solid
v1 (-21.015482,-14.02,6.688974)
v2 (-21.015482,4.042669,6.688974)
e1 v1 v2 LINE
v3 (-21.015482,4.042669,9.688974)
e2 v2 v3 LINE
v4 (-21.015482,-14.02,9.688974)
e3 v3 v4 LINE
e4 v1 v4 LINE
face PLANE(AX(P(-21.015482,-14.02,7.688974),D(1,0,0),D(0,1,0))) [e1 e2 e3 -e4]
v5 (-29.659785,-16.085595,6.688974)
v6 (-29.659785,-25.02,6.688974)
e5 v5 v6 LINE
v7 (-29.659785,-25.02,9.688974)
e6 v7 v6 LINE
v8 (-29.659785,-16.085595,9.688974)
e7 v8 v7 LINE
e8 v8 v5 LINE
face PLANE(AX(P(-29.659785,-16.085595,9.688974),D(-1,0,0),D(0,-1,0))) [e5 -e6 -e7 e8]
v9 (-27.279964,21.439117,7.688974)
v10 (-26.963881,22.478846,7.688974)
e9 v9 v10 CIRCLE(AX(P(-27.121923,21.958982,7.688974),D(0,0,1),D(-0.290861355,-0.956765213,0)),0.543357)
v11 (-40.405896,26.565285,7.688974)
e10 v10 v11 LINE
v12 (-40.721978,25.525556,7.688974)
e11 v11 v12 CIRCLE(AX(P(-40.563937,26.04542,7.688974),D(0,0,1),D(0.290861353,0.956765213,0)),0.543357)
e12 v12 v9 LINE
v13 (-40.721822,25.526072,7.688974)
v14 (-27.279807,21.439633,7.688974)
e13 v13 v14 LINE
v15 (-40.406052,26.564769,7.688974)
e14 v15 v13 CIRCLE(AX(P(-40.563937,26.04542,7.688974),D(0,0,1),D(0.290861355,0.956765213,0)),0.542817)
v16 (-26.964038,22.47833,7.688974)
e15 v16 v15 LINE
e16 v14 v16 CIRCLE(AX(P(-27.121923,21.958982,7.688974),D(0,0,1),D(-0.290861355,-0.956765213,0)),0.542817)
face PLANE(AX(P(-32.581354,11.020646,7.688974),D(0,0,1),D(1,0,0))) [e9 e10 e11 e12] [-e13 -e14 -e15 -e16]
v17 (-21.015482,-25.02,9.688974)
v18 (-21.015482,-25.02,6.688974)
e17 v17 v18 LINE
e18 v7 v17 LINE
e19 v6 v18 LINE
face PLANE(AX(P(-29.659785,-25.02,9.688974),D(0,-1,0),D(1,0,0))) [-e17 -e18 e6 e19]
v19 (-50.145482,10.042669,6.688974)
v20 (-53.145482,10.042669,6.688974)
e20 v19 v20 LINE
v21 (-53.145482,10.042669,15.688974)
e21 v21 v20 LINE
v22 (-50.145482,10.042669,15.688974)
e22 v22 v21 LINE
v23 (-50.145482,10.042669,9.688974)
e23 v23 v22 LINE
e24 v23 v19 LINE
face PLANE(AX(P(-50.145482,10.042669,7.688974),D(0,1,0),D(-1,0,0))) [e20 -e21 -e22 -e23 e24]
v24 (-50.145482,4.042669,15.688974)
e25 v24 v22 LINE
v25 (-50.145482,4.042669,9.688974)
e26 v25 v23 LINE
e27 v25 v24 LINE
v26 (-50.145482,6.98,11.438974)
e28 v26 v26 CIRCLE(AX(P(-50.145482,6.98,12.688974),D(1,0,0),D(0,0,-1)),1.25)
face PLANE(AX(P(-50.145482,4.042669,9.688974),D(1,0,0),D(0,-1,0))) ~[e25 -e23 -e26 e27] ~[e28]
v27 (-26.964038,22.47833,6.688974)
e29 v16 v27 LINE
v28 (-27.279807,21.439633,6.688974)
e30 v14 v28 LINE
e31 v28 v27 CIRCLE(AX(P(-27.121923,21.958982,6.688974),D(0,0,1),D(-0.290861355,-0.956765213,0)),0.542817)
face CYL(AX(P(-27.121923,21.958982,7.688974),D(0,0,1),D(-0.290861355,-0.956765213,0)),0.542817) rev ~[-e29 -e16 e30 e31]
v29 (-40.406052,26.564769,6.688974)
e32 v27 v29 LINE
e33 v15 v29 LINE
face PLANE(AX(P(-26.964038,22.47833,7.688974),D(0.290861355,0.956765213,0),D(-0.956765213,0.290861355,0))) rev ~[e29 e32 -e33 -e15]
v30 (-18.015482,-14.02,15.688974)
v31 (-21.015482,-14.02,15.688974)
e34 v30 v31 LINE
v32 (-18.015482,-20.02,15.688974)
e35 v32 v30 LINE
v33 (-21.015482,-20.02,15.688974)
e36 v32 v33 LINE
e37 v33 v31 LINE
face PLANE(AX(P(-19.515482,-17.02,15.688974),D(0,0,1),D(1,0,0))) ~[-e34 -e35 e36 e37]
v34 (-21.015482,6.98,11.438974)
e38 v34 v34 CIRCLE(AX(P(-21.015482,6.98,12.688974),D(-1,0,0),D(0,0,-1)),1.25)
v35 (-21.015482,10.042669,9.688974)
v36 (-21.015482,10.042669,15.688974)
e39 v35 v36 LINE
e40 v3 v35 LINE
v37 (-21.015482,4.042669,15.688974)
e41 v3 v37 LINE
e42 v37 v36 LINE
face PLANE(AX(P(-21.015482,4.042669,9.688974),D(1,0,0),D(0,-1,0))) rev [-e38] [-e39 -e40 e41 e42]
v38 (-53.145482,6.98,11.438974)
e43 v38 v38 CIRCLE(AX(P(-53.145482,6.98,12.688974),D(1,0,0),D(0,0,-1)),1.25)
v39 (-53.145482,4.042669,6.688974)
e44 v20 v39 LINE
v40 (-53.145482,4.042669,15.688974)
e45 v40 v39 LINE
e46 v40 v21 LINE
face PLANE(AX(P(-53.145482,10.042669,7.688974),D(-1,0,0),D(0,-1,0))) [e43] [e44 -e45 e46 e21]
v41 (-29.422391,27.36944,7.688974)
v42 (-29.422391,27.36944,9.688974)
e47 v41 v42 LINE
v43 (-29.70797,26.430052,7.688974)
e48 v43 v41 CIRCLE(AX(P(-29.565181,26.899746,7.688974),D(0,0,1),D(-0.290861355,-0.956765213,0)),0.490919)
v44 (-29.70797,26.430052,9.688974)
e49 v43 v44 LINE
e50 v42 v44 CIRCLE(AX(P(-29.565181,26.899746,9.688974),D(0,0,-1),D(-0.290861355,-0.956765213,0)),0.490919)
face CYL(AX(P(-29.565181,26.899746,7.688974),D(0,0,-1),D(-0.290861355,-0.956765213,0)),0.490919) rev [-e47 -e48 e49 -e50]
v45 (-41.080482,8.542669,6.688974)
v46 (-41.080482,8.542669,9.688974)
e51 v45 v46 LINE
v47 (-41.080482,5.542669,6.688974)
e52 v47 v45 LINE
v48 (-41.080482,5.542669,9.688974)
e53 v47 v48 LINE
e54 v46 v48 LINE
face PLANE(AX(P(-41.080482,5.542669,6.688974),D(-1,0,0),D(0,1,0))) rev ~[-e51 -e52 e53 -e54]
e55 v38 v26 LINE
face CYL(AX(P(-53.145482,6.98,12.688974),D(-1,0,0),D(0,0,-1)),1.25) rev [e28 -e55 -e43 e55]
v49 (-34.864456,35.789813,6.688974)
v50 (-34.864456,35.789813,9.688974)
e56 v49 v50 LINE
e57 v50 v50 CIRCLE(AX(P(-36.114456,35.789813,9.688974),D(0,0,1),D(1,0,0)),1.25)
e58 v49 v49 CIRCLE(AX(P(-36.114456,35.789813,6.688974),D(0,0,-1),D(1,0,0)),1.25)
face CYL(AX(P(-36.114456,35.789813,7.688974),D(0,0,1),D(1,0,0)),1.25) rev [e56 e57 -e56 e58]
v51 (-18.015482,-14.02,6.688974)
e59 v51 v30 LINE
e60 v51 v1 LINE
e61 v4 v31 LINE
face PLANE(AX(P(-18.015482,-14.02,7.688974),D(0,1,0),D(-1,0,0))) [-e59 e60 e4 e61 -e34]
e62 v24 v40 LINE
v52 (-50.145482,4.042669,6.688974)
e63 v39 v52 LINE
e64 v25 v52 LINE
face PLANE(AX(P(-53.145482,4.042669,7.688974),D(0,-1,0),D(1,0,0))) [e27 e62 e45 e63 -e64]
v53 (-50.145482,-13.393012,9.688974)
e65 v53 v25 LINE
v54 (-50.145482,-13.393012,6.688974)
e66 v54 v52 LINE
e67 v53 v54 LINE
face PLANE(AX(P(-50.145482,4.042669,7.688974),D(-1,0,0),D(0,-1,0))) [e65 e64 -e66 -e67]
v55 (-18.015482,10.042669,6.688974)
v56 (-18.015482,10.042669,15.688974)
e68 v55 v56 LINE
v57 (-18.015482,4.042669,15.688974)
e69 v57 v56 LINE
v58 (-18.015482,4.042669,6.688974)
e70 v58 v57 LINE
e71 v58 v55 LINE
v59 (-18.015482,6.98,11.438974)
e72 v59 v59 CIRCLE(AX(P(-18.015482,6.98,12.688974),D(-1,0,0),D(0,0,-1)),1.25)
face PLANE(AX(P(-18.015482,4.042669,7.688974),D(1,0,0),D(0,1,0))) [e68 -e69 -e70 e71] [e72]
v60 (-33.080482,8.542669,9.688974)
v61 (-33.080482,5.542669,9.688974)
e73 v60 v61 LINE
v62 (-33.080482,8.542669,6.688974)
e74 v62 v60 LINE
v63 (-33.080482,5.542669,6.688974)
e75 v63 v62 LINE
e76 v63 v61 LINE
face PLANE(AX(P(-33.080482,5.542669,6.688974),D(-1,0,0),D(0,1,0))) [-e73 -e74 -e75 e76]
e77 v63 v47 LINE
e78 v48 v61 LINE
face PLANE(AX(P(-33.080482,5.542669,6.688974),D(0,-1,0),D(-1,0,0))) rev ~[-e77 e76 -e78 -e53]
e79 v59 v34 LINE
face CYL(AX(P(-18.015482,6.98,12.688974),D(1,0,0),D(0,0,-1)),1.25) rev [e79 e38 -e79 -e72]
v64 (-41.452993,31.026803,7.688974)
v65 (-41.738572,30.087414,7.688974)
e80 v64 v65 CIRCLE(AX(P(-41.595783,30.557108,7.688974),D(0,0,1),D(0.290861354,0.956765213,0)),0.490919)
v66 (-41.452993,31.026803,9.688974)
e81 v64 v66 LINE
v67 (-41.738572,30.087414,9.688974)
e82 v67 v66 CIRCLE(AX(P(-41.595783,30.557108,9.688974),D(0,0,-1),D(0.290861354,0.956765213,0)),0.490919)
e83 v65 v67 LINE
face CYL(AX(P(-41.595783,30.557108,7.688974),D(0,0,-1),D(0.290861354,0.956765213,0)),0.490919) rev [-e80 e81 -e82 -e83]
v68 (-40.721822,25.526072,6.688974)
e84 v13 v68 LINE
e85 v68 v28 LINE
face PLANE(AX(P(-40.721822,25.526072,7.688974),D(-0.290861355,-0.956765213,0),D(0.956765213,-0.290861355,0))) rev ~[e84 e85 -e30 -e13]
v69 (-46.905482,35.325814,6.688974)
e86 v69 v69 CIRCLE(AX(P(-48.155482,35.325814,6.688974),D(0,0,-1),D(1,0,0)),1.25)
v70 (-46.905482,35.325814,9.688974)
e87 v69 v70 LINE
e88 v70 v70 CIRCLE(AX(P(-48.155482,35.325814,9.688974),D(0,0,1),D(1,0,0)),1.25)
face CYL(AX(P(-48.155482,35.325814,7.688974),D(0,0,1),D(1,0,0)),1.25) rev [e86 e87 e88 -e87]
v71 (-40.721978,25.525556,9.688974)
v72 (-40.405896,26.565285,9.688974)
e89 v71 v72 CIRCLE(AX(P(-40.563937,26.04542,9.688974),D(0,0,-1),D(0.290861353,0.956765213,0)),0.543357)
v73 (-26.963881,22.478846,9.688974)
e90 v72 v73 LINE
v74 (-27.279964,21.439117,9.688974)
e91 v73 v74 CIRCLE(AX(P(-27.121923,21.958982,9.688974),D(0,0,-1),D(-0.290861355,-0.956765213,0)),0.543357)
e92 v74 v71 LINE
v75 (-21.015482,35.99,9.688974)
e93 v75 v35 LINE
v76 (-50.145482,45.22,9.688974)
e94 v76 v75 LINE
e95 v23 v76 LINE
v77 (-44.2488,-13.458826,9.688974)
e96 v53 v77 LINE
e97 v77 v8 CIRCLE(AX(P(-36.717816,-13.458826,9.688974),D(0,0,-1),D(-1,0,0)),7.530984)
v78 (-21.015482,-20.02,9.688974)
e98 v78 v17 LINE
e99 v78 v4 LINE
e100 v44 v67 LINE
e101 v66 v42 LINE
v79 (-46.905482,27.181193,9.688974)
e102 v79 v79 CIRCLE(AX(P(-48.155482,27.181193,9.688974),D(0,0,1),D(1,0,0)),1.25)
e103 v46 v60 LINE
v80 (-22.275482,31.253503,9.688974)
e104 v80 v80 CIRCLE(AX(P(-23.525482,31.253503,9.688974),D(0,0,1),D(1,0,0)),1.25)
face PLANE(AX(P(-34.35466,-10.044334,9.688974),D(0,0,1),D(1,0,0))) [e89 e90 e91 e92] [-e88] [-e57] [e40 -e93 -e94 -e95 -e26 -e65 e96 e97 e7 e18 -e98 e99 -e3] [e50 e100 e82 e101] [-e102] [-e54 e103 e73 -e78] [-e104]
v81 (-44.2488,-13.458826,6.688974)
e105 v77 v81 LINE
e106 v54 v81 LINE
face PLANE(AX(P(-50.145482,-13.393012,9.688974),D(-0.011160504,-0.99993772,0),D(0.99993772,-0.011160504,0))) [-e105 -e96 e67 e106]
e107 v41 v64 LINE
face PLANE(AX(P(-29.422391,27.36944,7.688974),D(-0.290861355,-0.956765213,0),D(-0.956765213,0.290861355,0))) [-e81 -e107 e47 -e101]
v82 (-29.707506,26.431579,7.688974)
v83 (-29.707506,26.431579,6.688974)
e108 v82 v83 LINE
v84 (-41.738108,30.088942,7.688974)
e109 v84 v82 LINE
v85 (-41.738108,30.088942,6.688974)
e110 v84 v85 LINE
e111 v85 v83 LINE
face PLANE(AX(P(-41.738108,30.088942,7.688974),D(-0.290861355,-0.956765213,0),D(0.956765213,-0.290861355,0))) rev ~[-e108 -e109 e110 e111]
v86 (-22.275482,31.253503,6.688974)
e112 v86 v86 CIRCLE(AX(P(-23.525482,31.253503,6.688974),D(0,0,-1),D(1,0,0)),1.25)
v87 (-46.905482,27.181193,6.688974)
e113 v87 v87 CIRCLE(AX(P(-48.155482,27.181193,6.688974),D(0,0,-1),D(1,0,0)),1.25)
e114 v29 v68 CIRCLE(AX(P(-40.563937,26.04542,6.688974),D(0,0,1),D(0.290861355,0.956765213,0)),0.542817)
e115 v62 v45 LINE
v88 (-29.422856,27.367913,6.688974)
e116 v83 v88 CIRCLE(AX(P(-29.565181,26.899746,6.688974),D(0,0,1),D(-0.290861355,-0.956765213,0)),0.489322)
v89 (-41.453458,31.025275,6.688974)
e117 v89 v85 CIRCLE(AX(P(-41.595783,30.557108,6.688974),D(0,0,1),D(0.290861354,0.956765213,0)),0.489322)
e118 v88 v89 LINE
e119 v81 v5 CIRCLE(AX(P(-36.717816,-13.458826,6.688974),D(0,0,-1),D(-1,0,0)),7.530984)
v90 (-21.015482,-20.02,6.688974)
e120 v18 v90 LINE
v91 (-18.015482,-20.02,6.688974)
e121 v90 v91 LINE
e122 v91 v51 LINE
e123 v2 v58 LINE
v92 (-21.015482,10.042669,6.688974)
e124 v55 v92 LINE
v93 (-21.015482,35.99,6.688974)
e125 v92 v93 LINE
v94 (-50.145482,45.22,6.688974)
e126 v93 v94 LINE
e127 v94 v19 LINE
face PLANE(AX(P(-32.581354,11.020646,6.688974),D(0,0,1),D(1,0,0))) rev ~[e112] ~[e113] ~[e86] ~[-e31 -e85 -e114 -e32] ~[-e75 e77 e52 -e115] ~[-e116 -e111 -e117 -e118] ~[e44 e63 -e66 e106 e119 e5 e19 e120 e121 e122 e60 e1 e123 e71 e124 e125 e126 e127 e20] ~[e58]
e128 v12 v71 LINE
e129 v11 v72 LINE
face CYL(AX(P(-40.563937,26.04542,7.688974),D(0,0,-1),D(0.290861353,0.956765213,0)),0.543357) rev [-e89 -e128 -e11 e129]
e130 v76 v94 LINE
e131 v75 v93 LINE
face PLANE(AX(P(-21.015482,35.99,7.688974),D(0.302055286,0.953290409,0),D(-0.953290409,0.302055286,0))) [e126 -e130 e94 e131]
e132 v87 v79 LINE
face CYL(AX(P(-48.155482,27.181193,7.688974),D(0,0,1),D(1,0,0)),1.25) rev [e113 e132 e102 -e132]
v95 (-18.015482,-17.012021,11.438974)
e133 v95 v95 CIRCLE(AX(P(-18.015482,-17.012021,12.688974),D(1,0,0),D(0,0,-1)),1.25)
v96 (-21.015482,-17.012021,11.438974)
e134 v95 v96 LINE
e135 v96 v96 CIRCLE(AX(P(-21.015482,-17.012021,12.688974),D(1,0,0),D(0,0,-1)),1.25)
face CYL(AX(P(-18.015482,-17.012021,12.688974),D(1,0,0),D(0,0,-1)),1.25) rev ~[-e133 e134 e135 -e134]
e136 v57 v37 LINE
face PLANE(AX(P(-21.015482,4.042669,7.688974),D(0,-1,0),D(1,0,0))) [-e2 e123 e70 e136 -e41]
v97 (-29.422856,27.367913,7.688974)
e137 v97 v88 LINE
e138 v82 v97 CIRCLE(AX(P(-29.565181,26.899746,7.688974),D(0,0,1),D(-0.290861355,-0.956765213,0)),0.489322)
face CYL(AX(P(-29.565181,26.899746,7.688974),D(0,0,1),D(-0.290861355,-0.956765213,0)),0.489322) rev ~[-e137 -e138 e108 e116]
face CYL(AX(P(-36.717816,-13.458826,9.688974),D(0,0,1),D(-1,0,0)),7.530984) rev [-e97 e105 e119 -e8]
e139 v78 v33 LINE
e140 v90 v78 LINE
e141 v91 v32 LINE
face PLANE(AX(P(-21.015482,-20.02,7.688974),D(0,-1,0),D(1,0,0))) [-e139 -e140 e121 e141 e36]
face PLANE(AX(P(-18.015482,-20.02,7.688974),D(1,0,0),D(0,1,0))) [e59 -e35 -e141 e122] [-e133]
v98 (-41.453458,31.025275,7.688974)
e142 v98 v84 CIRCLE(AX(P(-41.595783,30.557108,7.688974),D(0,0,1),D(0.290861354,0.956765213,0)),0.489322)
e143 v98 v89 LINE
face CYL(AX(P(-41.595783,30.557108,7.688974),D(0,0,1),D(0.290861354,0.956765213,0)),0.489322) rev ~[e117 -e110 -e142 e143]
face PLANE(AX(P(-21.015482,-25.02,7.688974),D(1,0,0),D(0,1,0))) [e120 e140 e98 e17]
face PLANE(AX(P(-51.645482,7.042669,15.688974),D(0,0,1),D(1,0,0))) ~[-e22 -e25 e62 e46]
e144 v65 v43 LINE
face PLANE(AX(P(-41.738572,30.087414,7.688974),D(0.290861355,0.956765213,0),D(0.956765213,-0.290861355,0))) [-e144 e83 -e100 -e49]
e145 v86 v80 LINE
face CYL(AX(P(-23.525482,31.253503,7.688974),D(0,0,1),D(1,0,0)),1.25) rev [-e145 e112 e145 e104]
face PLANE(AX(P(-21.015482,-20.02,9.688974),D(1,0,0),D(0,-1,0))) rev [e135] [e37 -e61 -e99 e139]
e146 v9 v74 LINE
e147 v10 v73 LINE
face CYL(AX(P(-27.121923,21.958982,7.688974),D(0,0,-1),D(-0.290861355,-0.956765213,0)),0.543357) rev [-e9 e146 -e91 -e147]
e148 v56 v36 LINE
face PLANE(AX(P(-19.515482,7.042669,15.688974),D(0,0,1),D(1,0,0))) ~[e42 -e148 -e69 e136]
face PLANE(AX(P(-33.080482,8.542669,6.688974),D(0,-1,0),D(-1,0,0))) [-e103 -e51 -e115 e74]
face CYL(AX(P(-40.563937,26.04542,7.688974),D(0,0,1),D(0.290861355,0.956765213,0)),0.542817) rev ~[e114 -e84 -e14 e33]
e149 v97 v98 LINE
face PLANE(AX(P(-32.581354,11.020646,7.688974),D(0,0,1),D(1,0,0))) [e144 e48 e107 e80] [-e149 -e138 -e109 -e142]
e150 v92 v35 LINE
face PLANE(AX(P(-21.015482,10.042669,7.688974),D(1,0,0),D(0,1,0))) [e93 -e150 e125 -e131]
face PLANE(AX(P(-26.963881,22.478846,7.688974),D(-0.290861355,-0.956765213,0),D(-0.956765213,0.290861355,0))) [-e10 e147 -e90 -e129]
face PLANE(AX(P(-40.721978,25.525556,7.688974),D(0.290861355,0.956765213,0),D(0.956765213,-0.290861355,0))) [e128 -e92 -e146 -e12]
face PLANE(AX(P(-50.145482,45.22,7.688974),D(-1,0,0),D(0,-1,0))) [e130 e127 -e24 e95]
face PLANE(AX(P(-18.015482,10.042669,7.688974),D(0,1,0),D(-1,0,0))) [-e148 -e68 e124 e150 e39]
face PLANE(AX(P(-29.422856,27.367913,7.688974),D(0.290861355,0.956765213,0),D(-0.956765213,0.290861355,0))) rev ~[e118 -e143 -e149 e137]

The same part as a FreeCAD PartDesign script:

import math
import FreeCAD as App
import Part
import Sketcher
from FreeCAD import Vector
Q = App.Units.Quantity

doc = App.newDocument("Part")
body = doc.addObject("PartDesign::Body", "Body")

sketch1 = doc.addObject("Sketcher::SketchObject", "Sketch")
body.addObject(sketch1)
sketch1.AttachmentSupport = (doc.XZ_Plane, [""])
sketch1.MapMode = "FlatFace"
sketch1.addGeometry([
    Part.LineSegment(Vector(-50.1, 21.7, 0), Vector(-50.1, 23.7, 0)),
    Part.LineSegment(Vector(-50.1, 23.7, 0), Vector(-21, 23.7, 0)),
    Part.LineSegment(Vector(-21, 23.7, 0), Vector(-21, 21.7, 0)),
    Part.LineSegment(Vector(-21, 21.7, 0), Vector(-50.1, 21.7, 0)),
], False)
sketch1.addConstraint([
    Sketcher.Constraint("Coincident", 0, 2, 1, 1),
    Sketcher.Constraint("Coincident", 1, 2, 2, 1),
    Sketcher.Constraint("Coincident", 2, 2, 3, 1),
    Sketcher.Constraint("Coincident", 3, 2, 0, 1),
    Sketcher.Constraint("Vertical", 0),
    Sketcher.Constraint("Horizontal", 1),
    Sketcher.Constraint("Vertical", 2),
    Sketcher.Constraint("Horizontal", 3),
    Sketcher.Constraint("DistanceY", 0, 1, 0, 2, Q("2 mm")),
    Sketcher.Constraint("DistanceX", 1, 1, 1, 2, Q("29.13 mm")),
    Sketcher.Constraint("DistanceX", 0, 2, -1, 1, Q("50.145482 mm")),
    Sketcher.Constraint("DistanceY", -1, 1, 0, 2, Q("23.688974 mm")),
])
pad1 = doc.addObject("PartDesign::Pad", "Pad")
body.addObject(pad1)
pad1.Profile = sketch1
pad1.Length = 45.22
pad1.Reversed = True

sketch2 = doc.addObject("Sketcher::SketchObject", "Sketch001")
body.addObject(sketch2)
sketch2.AttachmentSupport = (doc.XZ_Plane, [""])
sketch2.MapMode = "FlatFace"
sketch2.addGeometry([
    Part.LineSegment(Vector(-24.9, 23.7, 0), Vector(-24.9, 21.7, 0)),
    Part.LineSegment(Vector(-24.9, 21.7, 0), Vector(-21, 21.7, 0)),
    Part.LineSegment(Vector(-21, 21.7, 0), Vector(-21, 23.7, 0)),
    Part.LineSegment(Vector(-21, 23.7, 0), Vector(-24.9, 23.7, 0)),
], False)
sketch2.addConstraint([
    Sketcher.Constraint("Coincident", 0, 2, 1, 1),
    Sketcher.Constraint("Coincident", 1, 2, 2, 1),
    Sketcher.Constraint("Coincident", 2, 2, 3, 1),
    Sketcher.Constraint("Coincident", 3, 2, 0, 1),
    Sketcher.Constraint("Vertical", 0),
    Sketcher.Constraint("Horizontal", 1),
    Sketcher.Constraint("Vertical", 2),
    Sketcher.Constraint("Horizontal", 3),
    Sketcher.Constraint("DistanceY", 0, 2, 0, 1, Q("2 mm")),
    Sketcher.Constraint("DistanceX", 1, 1, 1, 2, Q("3.835 mm")),
    Sketcher.Constraint("DistanceX", 0, 2, -1, 1, Q("24.850482 mm")),
    Sketcher.Constraint("DistanceY", -1, 1, 0, 2, Q("21.688974 mm")),
])
pad2 = doc.addObject("PartDesign::Pad", "Pad001")
body.addObject(pad2)
pad2.Profile = sketch2
pad2.Length = 25.02

sketch3 = doc.addObject("Sketcher::SketchObject", "Sketch002")
body.addObject(sketch3)
sketch3.AttachmentSupport = (doc.YZ_Plane, [""])
sketch3.MapMode = "FlatFace"
sketch3.AttachmentOffset = App.Placement(Vector(0, 0, -21.015482), App.Rotation())
sketch3.addGeometry([
    Part.LineSegment(Vector(-14, 23.7, 0), Vector(-20, 23.7, 0)),
    Part.LineSegment(Vector(-20, 23.7, 0), Vector(-20, 21.7, 0)),
    Part.LineSegment(Vector(-20, 21.7, 0), Vector(-14, 21.7, 0)),
    Part.LineSegment(Vector(-14, 21.7, 0), Vector(-14, 23.7, 0)),
], False)
sketch3.addConstraint([
    Sketcher.Constraint("Coincident", 0, 2, 1, 1),
    Sketcher.Constraint("Coincident", 1, 2, 2, 1),
    Sketcher.Constraint("Coincident", 2, 2, 3, 1),
    Sketcher.Constraint("Coincident", 3, 2, 0, 1),
    Sketcher.Constraint("Horizontal", 0),
    Sketcher.Constraint("Vertical", 1),
    Sketcher.Constraint("Horizontal", 2),
    Sketcher.Constraint("Vertical", 3),
    Sketcher.Constraint("DistanceX", 0, 2, 0, 1, Q("6 mm")),
    Sketcher.Constraint("DistanceY", 1, 2, 1, 1, Q("2 mm")),
    Sketcher.Constraint("DistanceX", 0, 2, -1, 1, Q("20.02 mm")),
    Sketcher.Constraint("DistanceY", -1, 1, 0, 2, Q("23.688974 mm")),
])
pad3 = doc.addObject("PartDesign::Pad", "Pad002")
body.addObject(pad3)
pad3.Profile = sketch3
pad3.Length = 3

sketch4 = doc.addObject("Sketcher::SketchObject", "Sketch003")
body.addObject(sketch4)
sketch4.AttachmentSupport = (doc.XY_Plane, [""])
sketch4.MapMode = "FlatFace"
sketch4.AttachmentOffset = App.Placement(Vector(0, 0, 21.688974), App.Rotation())
sketch4.addGeometry([
    Part.LineSegment(Vector(-18, -14, 0), Vector(-18, -20, 0)),
    Part.LineSegment(Vector(-18, -20, 0), Vector(-21, -20, 0)),
    Part.LineSegment(Vector(-21, -20, 0), Vector(-21, -14, 0)),
    Part.LineSegment(Vector(-21, -14, 0), Vector(-18, -14, 0)),
], False)
sketch4.addConstraint([
    Sketcher.Constraint("Coincident", 0, 2, 1, 1),
    Sketcher.Constraint("Coincident", 1, 2, 2, 1),
    Sketcher.Constraint("Coincident", 2, 2, 3, 1),
    Sketcher.Constraint("Coincident", 3, 2, 0, 1),
    Sketcher.Constraint("Vertical", 0),
    Sketcher.Constraint("Horizontal", 1),
    Sketcher.Constraint("Vertical", 2),
    Sketcher.Constraint("Horizontal", 3),
    Sketcher.Constraint("DistanceX", 1, 2, 1, 1, Q("3 mm")),
    Sketcher.Constraint("DistanceY", 0, 2, 0, 1, Q("6 mm")),
    Sketcher.Constraint("DistanceY", 0, 2, -1, 1, Q("20.02 mm")),
    Sketcher.Constraint("DistanceX", 0, 2, -1, 1, Q("18.015482 mm")),
])
pad4 = doc.addObject("PartDesign::Pad", "Pad003")
body.addObject(pad4)
pad4.Profile = sketch4
pad4.Length = 6
pad4.Reversed = True

sketch5 = doc.addObject("Sketcher::SketchObject", "Sketch004")
body.addObject(sketch5)
sketch5.AttachmentSupport = (doc.XY_Plane, [""])
sketch5.MapMode = "FlatFace"
sketch5.AttachmentOffset = App.Placement(Vector(0, 0, 23.688974), App.Rotation())
sketch5.addGeometry([
    Part.LineSegment(Vector(-21, 38, 0), Vector(-21, 45, 0)),
    Part.LineSegment(Vector(-21, 45, 0), Vector(-50, 45, 0)),
    Part.LineSegment(Vector(-50, 45, 0), Vector(-21, 38, 0)),
], False)
sketch5.addConstraint([
    Sketcher.Constraint("Coincident", 0, 2, 1, 1),
    Sketcher.Constraint("Coincident", 1, 2, 2, 1),
    Sketcher.Constraint("Coincident", 2, 2, 0, 1),
    Sketcher.Constraint("Vertical", 0),
    Sketcher.Constraint("Horizontal", 1),
    Sketcher.Constraint("DistanceX", 1, 2, 1, 1, Q("29.13 mm")),
    Sketcher.Constraint("DistanceY", 0, 1, 0, 2, Q("7.65 mm")),
    Sketcher.Constraint("DistanceY", -1, 1, 0, 2, Q("45.22 mm")),
    Sketcher.Constraint("DistanceX", 0, 2, -1, 1, Q("21.015482 mm")),
])
pocket1 = doc.addObject("PartDesign::Pocket", "Pocket")
body.addObject(pocket1)
pocket1.Profile = sketch5
pocket1.Length = 4

sketch6 = doc.addObject("Sketcher::SketchObject", "Sketch005")
body.addObject(sketch6)
sketch6.AttachmentSupport = (doc.XY_Plane, [""])
sketch6.MapMode = "FlatFace"
sketch6.AttachmentOffset = App.Placement(Vector(0, 0, 23.688974), App.Rotation())
sketch6.addGeometry([
    Part.Circle(Vector(-48.2, 35.3, 0), Vector(0, 0, 1), 1.2),
    Part.Circle(Vector(-48.2, 27.2, 0), Vector(0, 0, 1), 1.2),
], False)
sketch6.addConstraint([
    Sketcher.Constraint("Equal", 0, 1),
    Sketcher.Constraint("Vertical", 0, 3, 1, 3),
    Sketcher.Constraint("Diameter", 0, Q("2.5 mm")),
    Sketcher.Constraint("DistanceX", 0, 3, -1, 1, Q("48.155482 mm")),
    Sketcher.Constraint("DistanceY", 1, 3, 0, 3, Q("8.144621 mm")),
    Sketcher.Constraint("DistanceY", -1, 1, 0, 3, Q("35.325814 mm")),
])
pocket2 = doc.addObject("PartDesign::Pocket", "Pocket001")
body.addObject(pocket2)
pocket2.Profile = sketch6
pocket2.Length = 5

sketch7 = doc.addObject("Sketcher::SketchObject", "Sketch006")
body.addObject(sketch7)
sketch7.AttachmentSupport = (doc.XY_Plane, [""])
sketch7.MapMode = "FlatFace"
sketch7.AttachmentOffset = App.Placement(Vector(0, 0, 23.688974), App.Rotation())
sketch7.addGeometry([
    Part.LineSegment(Vector(-21, 36, 0), Vector(-21, 37.6, 0)),
    Part.LineSegment(Vector(-21, 37.6, 0), Vector(-50.1, 45.2, 0)),
    Part.LineSegment(Vector(-50.1, 45.2, 0), Vector(-21, 36, 0)),
], False)
sketch7.addConstraint([
    Sketcher.Constraint("Coincident", 0, 2, 1, 1),
    Sketcher.Constraint("Coincident", 1, 2, 2, 1),
    Sketcher.Constraint("Coincident", 2, 2, 0, 1),
    Sketcher.Constraint("Vertical", 0),
    Sketcher.Constraint("DistanceY", 0, 1, 0, 2, Q("1.58 mm")),
    Sketcher.Constraint("DistanceY", -1, 1, 0, 2, Q("37.57 mm")),
    Sketcher.Constraint("DistanceY", -1, 1, 1, 2, Q("45.22 mm")),
    Sketcher.Constraint("DistanceX", 1, 2, 0, 2, Q("29.13 mm")),
    Sketcher.Constraint("DistanceX", 0, 2, -1, 1, Q("21.015482 mm")),
])
pocket3 = doc.addObject("PartDesign::Pocket", "Pocket002")
body.addObject(pocket3)
pocket3.Profile = sketch7
pocket3.Length = 4.86
body2 = doc.addObject("PartDesign::Body", "Body001")
doc.recompute()

mirroring = doc.addObject("Part::Mirroring", "Mirroring")
mirroring.Source = body
mirroring.Base = Vector(0, 0, 15.688974)
mirroring.Normal = Vector(0, 0, -1)
body2.BaseFeature = mirroring
doc.recompute()

sketch8 = doc.addObject("Sketcher::SketchObject", "Sketch007")
body2.addObject(sketch8)
sketch8.AttachmentSupport = (doc.getObject("XY_Plane001"), [""])
sketch8.MapMode = "FlatFace"
sketch8.AttachmentOffset = App.Placement(Vector(0, 0, 7.688974), App.Rotation())
sketch8.addGeometry([
    Part.LineSegment(Vector(-41.45, 31.03, 0), Vector(-29.42, 27.37, 0)),
    Part.ArcOfCircle(Part.Circle(Vector(-29.57, 26.9, 0), Vector(0, 0, 1), 0.49), math.radians(-107), math.radians(73)),
    Part.LineSegment(Vector(-29.71, 26.43, 0), Vector(-41.74, 30.09, 0)),
    Part.ArcOfCircle(Part.Circle(Vector(-41.6, 30.56, 0), Vector(0, 0, 1), 0.49), math.radians(73), math.radians(253)),
    Part.LineSegment(Vector(-40.41, 26.57, 0), Vector(-26.96, 22.48, 0)),
    Part.ArcOfCircle(Part.Circle(Vector(-27.12, 21.96, 0), Vector(0, 0, 1), 0.54), math.radians(-107), math.radians(73)),
    Part.LineSegment(Vector(-27.28, 21.44, 0), Vector(-40.72, 25.53, 0)),
    Part.ArcOfCircle(Part.Circle(Vector(-40.56, 26.05, 0), Vector(0, 0, 1), 0.54), math.radians(73), math.radians(253)),
], False)
sketch8.addConstraint([
    Sketcher.Constraint("Tangent", 0, 2, 1, 2),
    Sketcher.Constraint("Tangent", 1, 1, 2, 1),
    Sketcher.Constraint("Tangent", 2, 2, 3, 2),
    Sketcher.Constraint("Tangent", 3, 1, 0, 1),
    Sketcher.Constraint("Tangent", 4, 2, 5, 2),
    Sketcher.Constraint("Tangent", 5, 1, 6, 1),
    Sketcher.Constraint("Tangent", 6, 2, 7, 2),
    Sketcher.Constraint("Tangent", 7, 1, 4, 1),
    Sketcher.Constraint("Equal", 1, 3),
    Sketcher.Constraint("Equal", 5, 7),
    Sketcher.Constraint("Parallel", 2, 4),
    Sketcher.Constraint("Radius", 1, Q("0.490919 mm")),
    Sketcher.Constraint("Radius", 5, Q("0.543357 mm")),
    Sketcher.Constraint("DistanceX", 3, 3, 1, 3, Q("12.030602 mm")),
    Sketcher.Constraint("DistanceX", 1, 3, 4, 2, Q("2.601299 mm")),
    Sketcher.Constraint("DistanceY", 4, 2, 1, 3, Q("4.4209 mm")),
    Sketcher.Constraint("Distance", 4, Q("14.049439 mm")),
    Sketcher.Constraint("DistanceX", 1, 3, -1, 1, Q("29.565181 mm")),
    Sketcher.Constraint("DistanceY", -1, 1, 3, 3, Q("30.557108 mm")),
    Sketcher.Constraint("DistanceY", -1, 1, 5, 3, Q("21.958982 mm")),
])
pocket4 = doc.addObject("PartDesign::Pocket", "Pocket003")
body2.addObject(pocket4)
pocket4.Profile = sketch8
pocket4.Length = 5
pocket4.Reversed = True
body3 = doc.addObject("PartDesign::Body", "Body002")
doc.recompute()

mirroring2 = doc.addObject("Part::Mirroring", "Mirroring001")
mirroring2.Source = body2
mirroring2.Base = Vector(0, 0, 15.688974)
mirroring2.Normal = Vector(0, 0, 1)
body3.BaseFeature = mirroring2
doc.recompute()

sketch9 = doc.addObject("Sketcher::SketchObject", "Sketch008")
body3.addObject(sketch9)
sketch9.AttachmentSupport = (doc.getObject("XY_Plane002"), [""])
sketch9.MapMode = "FlatFace"
sketch9.AttachmentOffset = App.Placement(Vector(0, 0, 23.688974), App.Rotation())
sketch9.addGeometry(Part.Circle(Vector(-23.5, 31.3, 0), Vector(0, 0, 1), 1.2), False)
sketch9.addConstraint([
    Sketcher.Constraint("Diameter", 0, Q("2.5 mm")),
    Sketcher.Constraint("DistanceX", 0, 3, -1, 1, Q("23.525482 mm")),
    Sketcher.Constraint("DistanceY", -1, 1, 0, 3, Q("31.253503 mm")),
])
pocket5 = doc.addObject("PartDesign::Pocket", "Pocket004")
body3.addObject(pocket5)
pocket5.Profile = sketch9
pocket5.Length = 5

sketch10 = doc.addObject("Sketcher::SketchObject", "Sketch009")
body3.addObject(sketch10)
sketch10.AttachmentSupport = (doc.getObject("XY_Plane002"), [""])
sketch10.MapMode = "FlatFace"
sketch10.AttachmentOffset = App.Placement(Vector(0, 0, 23.688974), App.Rotation())
sketch10.addGeometry(Part.Circle(Vector(-36.1, 35.8, 0), Vector(0, 0, 1), 1.2), False)
sketch10.addConstraint([
    Sketcher.Constraint("Diameter", 0, Q("2.5 mm")),
    Sketcher.Constraint("DistanceX", 0, 3, -1, 1, Q("36.114456 mm")),
    Sketcher.Constraint("DistanceY", -1, 1, 0, 3, Q("35.789813 mm")),
])
pocket6 = doc.addObject("PartDesign::Pocket", "Pocket005")
body3.addObject(pocket6)
pocket6.Profile = sketch10
pocket6.Length = 5

sketch11 = doc.addObject("Sketcher::SketchObject", "Sketch010")
body3.addObject(sketch11)
sketch11.AttachmentSupport = (doc.getObject("YZ_Plane002"), [""])
sketch11.MapMode = "FlatFace"
sketch11.AttachmentOffset = App.Placement(Vector(0, 0, -50.145482), App.Rotation())
sketch11.addGeometry([
    Part.LineSegment(Vector(10, 21.7, 0), Vector(4, 21.7, 0)),
    Part.LineSegment(Vector(4, 21.7, 0), Vector(4, 23.7, 0)),
    Part.LineSegment(Vector(4, 23.7, 0), Vector(10, 23.7, 0)),
    Part.LineSegment(Vector(10, 23.7, 0), Vector(10, 21.7, 0)),
], False)
sketch11.addConstraint([
    Sketcher.Constraint("Coincident", 0, 2, 1, 1),
    Sketcher.Constraint("Coincident", 1, 2, 2, 1),
    Sketcher.Constraint("Coincident", 2, 2, 3, 1),
    Sketcher.Constraint("Coincident", 3, 2, 0, 1),
    Sketcher.Constraint("Horizontal", 0),
    Sketcher.Constraint("Vertical", 1),
    Sketcher.Constraint("Horizontal", 2),
    Sketcher.Constraint("Vertical", 3),
    Sketcher.Constraint("DistanceX", 0, 2, 0, 1, Q("6 mm")),
    Sketcher.Constraint("DistanceY", 1, 1, 1, 2, Q("2 mm")),
    Sketcher.Constraint("DistanceX", -1, 1, 0, 2, Q("4.042669 mm")),
    Sketcher.Constraint("DistanceY", -1, 1, 0, 2, Q("21.688974 mm")),
])
pad5 = doc.addObject("PartDesign::Pad", "Pad004")
body3.addObject(pad5)
pad5.Profile = sketch11
pad5.Length = 3
pad5.Reversed = True

sketch12 = doc.addObject("Sketcher::SketchObject", "Sketch011")
body3.addObject(sketch12)
sketch12.AttachmentSupport = (doc.getObject("XY_Plane002"), [""])
sketch12.MapMode = "FlatFace"
sketch12.AttachmentOffset = App.Placement(Vector(0, 0, 21.688974), App.Rotation())
sketch12.addGeometry([
    Part.LineSegment(Vector(-50.1, 10, 0), Vector(-50.1, 4, 0)),
    Part.LineSegment(Vector(-50.1, 4, 0), Vector(-53.1, 4, 0)),
    Part.LineSegment(Vector(-53.1, 4, 0), Vector(-53.1, 10, 0)),
    Part.LineSegment(Vector(-53.1, 10, 0), Vector(-50.1, 10, 0)),
], False)
sketch12.addConstraint([
    Sketcher.Constraint("Coincident", 0, 2, 1, 1),
    Sketcher.Constraint("Coincident", 1, 2, 2, 1),
    Sketcher.Constraint("Coincident", 2, 2, 3, 1),
    Sketcher.Constraint("Coincident", 3, 2, 0, 1),
    Sketcher.Constraint("Vertical", 0),
    Sketcher.Constraint("Horizontal", 1),
    Sketcher.Constraint("Vertical", 2),
    Sketcher.Constraint("Horizontal", 3),
    Sketcher.Constraint("DistanceX", 1, 2, 1, 1, Q("3 mm")),
    Sketcher.Constraint("DistanceY", 0, 2, 0, 1, Q("6 mm")),
    Sketcher.Constraint("DistanceX", 0, 2, -1, 1, Q("50.145482 mm")),
    Sketcher.Constraint("DistanceY", -1, 1, 0, 2, Q("4.042669 mm")),
])
pad6 = doc.addObject("PartDesign::Pad", "Pad005")
body3.addObject(pad6)
pad6.Profile = sketch12
pad6.Length = 6
pad6.Reversed = True

sketch13 = doc.addObject("Sketcher::SketchObject", "Sketch012")
body3.addObject(sketch13)
sketch13.AttachmentSupport = (doc.getObject("YZ_Plane002"), [""])
sketch13.MapMode = "FlatFace"
sketch13.AttachmentOffset = App.Placement(Vector(0, 0, -53.145482), App.Rotation())
sketch13.addGeometry(Part.Circle(Vector(7, 18.7, 0), Vector(0, 0, 1), 1.3), False)
sketch13.addConstraint([
    Sketcher.Constraint("Diameter", 0, Q("2.5 mm")),
    Sketcher.Constraint("DistanceX", -1, 1, 0, 3, Q("6.98 mm")),
    Sketcher.Constraint("DistanceY", -1, 1, 0, 3, Q("18.688974 mm")),
])
pocket7 = doc.addObject("PartDesign::Pocket", "Pocket006")
body3.addObject(pocket7)
pocket7.Profile = sketch13
pocket7.Length = 6
pocket7.Reversed = True

sketch14 = doc.addObject("Sketcher::SketchObject", "Sketch013")
body3.addObject(sketch14)
sketch14.AttachmentSupport = (doc.getObject("YZ_Plane002"), [""])
sketch14.MapMode = "FlatFace"
sketch14.AttachmentOffset = App.Placement(Vector(0, 0, -21.015482), App.Rotation())
sketch14.addGeometry([
    Part.LineSegment(Vector(10, 23.7, 0), Vector(4, 23.7, 0)),
    Part.LineSegment(Vector(4, 23.7, 0), Vector(4, 21.7, 0)),
    Part.LineSegment(Vector(4, 21.7, 0), Vector(10, 21.7, 0)),
    Part.LineSegment(Vector(10, 21.7, 0), Vector(10, 23.7, 0)),
], False)
sketch14.addConstraint([
    Sketcher.Constraint("Coincident", 0, 2, 1, 1),
    Sketcher.Constraint("Coincident", 1, 2, 2, 1),
    Sketcher.Constraint("Coincident", 2, 2, 3, 1),
    Sketcher.Constraint("Coincident", 3, 2, 0, 1),
    Sketcher.Constraint("Horizontal", 0),
    Sketcher.Constraint("Vertical", 1),
    Sketcher.Constraint("Horizontal", 2),
    Sketcher.Constraint("Vertical", 3),
    Sketcher.Constraint("DistanceX", 0, 2, 0, 1, Q("6 mm")),
    Sketcher.Constraint("DistanceY", 1, 2, 1, 1, Q("2 mm")),
    Sketcher.Constraint("DistanceX", -1, 1, 0, 2, Q("4.042669 mm")),
    Sketcher.Constraint("DistanceY", -1, 1, 0, 2, Q("23.688974 mm")),
])
pad7 = doc.addObject("PartDesign::Pad", "Pad006")
body3.addObject(pad7)
pad7.Profile = sketch14
pad7.Length = 3

sketch15 = doc.addObject("Sketcher::SketchObject", "Sketch014")
body3.addObject(sketch15)
sketch15.AttachmentSupport = (doc.getObject("XY_Plane002"), [""])
sketch15.MapMode = "FlatFace"
sketch15.AttachmentOffset = App.Placement(Vector(0, 0, 21.688974), App.Rotation())
sketch15.addGeometry([
    Part.LineSegment(Vector(-18, 10, 0), Vector(-18, 4, 0)),
    Part.LineSegment(Vector(-18, 4, 0), Vector(-21, 4, 0)),
    Part.LineSegment(Vector(-21, 4, 0), Vector(-21, 10, 0)),
    Part.LineSegment(Vector(-21, 10, 0), Vector(-18, 10, 0)),
], False)
sketch15.addConstraint([
    Sketcher.Constraint("Coincident", 0, 2, 1, 1),
    Sketcher.Constraint("Coincident", 1, 2, 2, 1),
    Sketcher.Constraint("Coincident", 2, 2, 3, 1),
    Sketcher.Constraint("Coincident", 3, 2, 0, 1),
    Sketcher.Constraint("Vertical", 0),
    Sketcher.Constraint("Horizontal", 1),
    Sketcher.Constraint("Vertical", 2),
    Sketcher.Constraint("Horizontal", 3),
    Sketcher.Constraint("DistanceX", 1, 2, 1, 1, Q("3 mm")),
    Sketcher.Constraint("DistanceY", 0, 2, 0, 1, Q("6 mm")),
    Sketcher.Constraint("DistanceX", 0, 2, -1, 1, Q("18.015482 mm")),
    Sketcher.Constraint("DistanceY", -1, 1, 0, 2, Q("4.042669 mm")),
])
pad8 = doc.addObject("PartDesign::Pad", "Pad007")
body3.addObject(pad8)
pad8.Profile = sketch15
pad8.Length = 6
pad8.Reversed = True

sketch16 = doc.addObject("Sketcher::SketchObject", "Sketch015")
body3.addObject(sketch16)
sketch16.AttachmentSupport = (doc.getObject("YZ_Plane002"), [""])
sketch16.MapMode = "FlatFace"
sketch16.AttachmentOffset = App.Placement(Vector(0, 0, -18.015482), App.Rotation())
sketch16.addGeometry(Part.Circle(Vector(7, 18.7, 0), Vector(0, 0, 1), 1.2), False)
sketch16.addConstraint([
    Sketcher.Constraint("Diameter", 0, Q("2.5 mm")),
    Sketcher.Constraint("DistanceX", -1, 1, 0, 3, Q("6.98 mm")),
    Sketcher.Constraint("DistanceY", -1, 1, 0, 3, Q("18.688974 mm")),
])
pocket8 = doc.addObject("PartDesign::Pocket", "Pocket007")
body3.addObject(pocket8)
pocket8.Profile = sketch16
pocket8.Length = 6
body4 = doc.addObject("PartDesign::Body", "Body003")
doc.recompute()

mirroring3 = doc.addObject("Part::Mirroring", "Mirroring002")
mirroring3.Source = body3
mirroring3.Base = Vector(0, 0, 15.688974)
mirroring3.Normal = Vector(0, 0, -1)
body4.BaseFeature = mirroring3
doc.recompute()

sketch17 = doc.addObject("Sketcher::SketchObject", "Sketch016")
body4.addObject(sketch17)
sketch17.AttachmentSupport = (doc.getObject("YZ_Plane003"), [""])
sketch17.MapMode = "FlatFace"
sketch17.AttachmentOffset = App.Placement(Vector(0, 0, -18.015482), App.Rotation())
sketch17.addGeometry(Part.Circle(Vector(-17, 12.7, 0), Vector(0, 0, 1), 1.2), False)
sketch17.addConstraint([
    Sketcher.Constraint("Diameter", 0, Q("2.5 mm")),
    Sketcher.Constraint("DistanceX", 0, 3, -1, 1, Q("17.012021 mm")),
    Sketcher.Constraint("DistanceY", -1, 1, 0, 3, Q("12.688974 mm")),
])
pocket9 = doc.addObject("PartDesign::Pocket", "Pocket008")
body4.addObject(pocket9)
pocket9.Profile = sketch17
pocket9.Length = 3

sketch18 = doc.addObject("Sketcher::SketchObject", "Sketch017")
body4.addObject(sketch18)
sketch18.AttachmentSupport = (doc.getObject("XY_Plane003"), [""])
sketch18.MapMode = "FlatFace"
sketch18.AttachmentOffset = App.Placement(Vector(0, 0, 7.688974), App.Rotation())
sketch18.addGeometry([
    Part.LineSegment(Vector(-24.9, 0, 0), Vector(-21, -25, 0)),
    Part.LineSegment(Vector(-21, -25, 0), Vector(-24.9, -25, 0)),
    Part.LineSegment(Vector(-24.9, -25, 0), Vector(-24.9, 0, 0)),
], False)
sketch18.addConstraint([
    Sketcher.Constraint("Coincident", 0, 2, 1, 1),
    Sketcher.Constraint("Coincident", 1, 2, 2, 1),
    Sketcher.Constraint("Coincident", 2, 2, 0, 1),
    Sketcher.Constraint("Horizontal", 1),
    Sketcher.Constraint("Vertical", 2),
    Sketcher.Constraint("PointOnObject", 2, 2, -1),
    Sketcher.Constraint("DistanceY", 2, 1, 2, 2, Q("25.02 mm")),
    Sketcher.Constraint("DistanceX", 1, 2, 1, 1, Q("3.835 mm")),
    Sketcher.Constraint("DistanceX", 0, 2, -1, 1, Q("21.015482 mm")),
])
pocket10 = doc.addObject("PartDesign::Pocket", "Pocket009")
body4.addObject(pocket10)
pocket10.Profile = sketch18
pocket10.Length = 10
pocket10.Reversed = True

sketch19 = doc.addObject("Sketcher::SketchObject", "Sketch018")
body4.addObject(sketch19)
sketch19.AttachmentSupport = (doc.getObject("XY_Plane003"), [""])
sketch19.MapMode = "FlatFace"
sketch19.AttachmentOffset = App.Placement(Vector(0, 0, 9.688974), App.Rotation())
sketch19.addGeometry([
    Part.LineSegment(Vector(-21, -25, 0), Vector(-25, 0, 0)),
    Part.LineSegment(Vector(-25, 0, 0), Vector(-50, 0, 0)),
    Part.LineSegment(Vector(-50, 0, 0), Vector(-50, -13, 0)),
    Part.LineSegment(Vector(-50, -13, 0), Vector(-44, -13, 0)),
    Part.ArcOfCircle(Part.Circle(Vector(-37, -13, 0), Vector(0, 0, 1), 8), math.radians(-20), math.radians(180)),
    Part.LineSegment(Vector(-30, -16, 0), Vector(-30, -25, 0)),
    Part.LineSegment(Vector(-30, -25, 0), Vector(-21, -25, 0)),
], False)
sketch19.addConstraint([
    Sketcher.Constraint("Coincident", 0, 2, 1, 1),
    Sketcher.Constraint("Coincident", 1, 2, 2, 1),
    Sketcher.Constraint("Coincident", 2, 2, 3, 1),
    Sketcher.Constraint("Coincident", 3, 2, 4, 2),
    Sketcher.Constraint("Coincident", 4, 1, 5, 1),
    Sketcher.Constraint("Coincident", 5, 2, 6, 1),
    Sketcher.Constraint("Coincident", 6, 2, 0, 1),
    Sketcher.Constraint("Horizontal", 1),
    Sketcher.Constraint("Vertical", 2),
    Sketcher.Constraint("Vertical", 5),
    Sketcher.Constraint("Horizontal", 6),
    Sketcher.Constraint("PointOnObject", 0, 2, -1),
    Sketcher.Constraint("Horizontal", 4, 3, 3, 2),
    Sketcher.Constraint("DistanceX", 1, 2, 1, 1, Q("25.295 mm")),
    Sketcher.Constraint("DistanceY", 5, 2, -1, 1, Q("25.02 mm")),
    Sketcher.Constraint("Radius", 4, Q("7.530984 mm")),
    Sketcher.Constraint("DistanceX", 0, 2, 6, 2, Q("3.835 mm")),
    Sketcher.Constraint("DistanceX", 3, 2, -1, 1, Q("44.2488 mm")),
    Sketcher.Constraint("Distance", 3, Q("5.897048 mm")),
    Sketcher.Constraint("DistanceX", 6, 1, 6, 2, Q("8.644303 mm")),
    Sketcher.Constraint("DistanceY", 2, 2, 2, 1, Q("13.393012 mm")),
    Sketcher.Constraint("DistanceY", 5, 2, 5, 1, Q("8.934405 mm")),
])
pad9 = doc.addObject("PartDesign::Pad", "Pad008")
body4.addObject(pad9)
pad9.Profile = sketch19
pad9.Length = 3
pad9.Reversed = True

sketch20 = doc.addObject("Sketcher::SketchObject", "Sketch019")
body4.addObject(sketch20)
sketch20.AttachmentSupport = (doc.getObject("XY_Plane003"), [""])
sketch20.MapMode = "FlatFace"
sketch20.AttachmentOffset = App.Placement(Vector(0, 0, 7.688974), App.Rotation())
sketch20.addGeometry([
    Part.LineSegment(Vector(-21.02, -20.02, 0), Vector(-21.02, -25.02, 0)),
    Part.LineSegment(Vector(-21.02, -25.02, 0), Vector(-24.85, 0, 0)),
    Part.LineSegment(Vector(-24.85, 0, 0), Vector(-50.15, 0, 0)),
    Part.LineSegment(Vector(-50.15, 0, 0), Vector(-50.15, 4.04, 0)),
    Part.LineSegment(Vector(-50.15, 4.04, 0), Vector(-53.15, 4.04, 0)),
    Part.LineSegment(Vector(-53.15, 4.04, 0), Vector(-53.15, 10.04, 0)),
    Part.LineSegment(Vector(-53.15, 10.04, 0), Vector(-50.15, 10.04, 0)),
    Part.LineSegment(Vector(-50.15, 10.04, 0), Vector(-50.15, 45.22, 0)),
    Part.LineSegment(Vector(-50.15, 45.22, 0), Vector(-21.02, 35.99, 0)),
    Part.LineSegment(Vector(-21.02, 35.99, 0), Vector(-21.02, 10.04, 0)),
    Part.LineSegment(Vector(-21.02, 10.04, 0), Vector(-18.02, 10.04, 0)),
    Part.LineSegment(Vector(-18.02, 10.04, 0), Vector(-18.02, 4.04, 0)),
    Part.LineSegment(Vector(-18.02, 4.04, 0), Vector(-21.02, 4.04, 0)),
    Part.LineSegment(Vector(-21.02, 4.04, 0), Vector(-21.02, -14.02, 0)),
    Part.LineSegment(Vector(-21.02, -14.02, 0), Vector(-18.02, -14.02, 0)),
    Part.LineSegment(Vector(-18.02, -14.02, 0), Vector(-18.02, -20.02, 0)),
    Part.LineSegment(Vector(-18.02, -20.02, 0), Vector(-21.02, -20.02, 0)),
    Part.Circle(Vector(-48.16, 27.18, 0), Vector(0, 0, 1), 1.25),
    Part.LineSegment(Vector(-26.96, 22.48, 0), Vector(-40.41, 26.56, 0)),
    Part.ArcOfCircle(Part.Circle(Vector(-40.56, 26.05, 0), Vector(0, 0, 1), 0.54), math.radians(73), math.radians(253)),
    Part.LineSegment(Vector(-40.72, 25.53, 0), Vector(-27.28, 21.44, 0)),
    Part.ArcOfCircle(Part.Circle(Vector(-27.12, 21.96, 0), Vector(0, 0, 1), 0.54), math.radians(-107), math.radians(73)),
    Part.LineSegment(Vector(-29.42, 27.37, 0), Vector(-41.45, 31.03, 0)),
    Part.ArcOfCircle(Part.Circle(Vector(-41.6, 30.56, 0), Vector(0, 0, 1), 0.49), math.radians(73), math.radians(253)),
    Part.LineSegment(Vector(-41.74, 30.09, 0), Vector(-29.71, 26.43, 0)),
    Part.ArcOfCircle(Part.Circle(Vector(-29.57, 26.9, 0), Vector(0, 0, 1), 0.49), math.radians(-107), math.radians(73)),
    Part.Circle(Vector(-48.16, 35.33, 0), Vector(0, 0, 1), 1.25),
    Part.Circle(Vector(-36.11, 35.79, 0), Vector(0, 0, 1), 1.25),
    Part.Circle(Vector(-23.53, 31.25, 0), Vector(0, 0, 1), 1.25),
], False)
sketch20.addConstraint([
    Sketcher.Constraint("Coincident", 0, 2, 1, 1),
    Sketcher.Constraint("Coincident", 1, 2, 2, 1),
    Sketcher.Constraint("Coincident", 2, 2, 3, 1),
    Sketcher.Constraint("Coincident", 3, 2, 4, 1),
    Sketcher.Constraint("Coincident", 4, 2, 5, 1),
    Sketcher.Constraint("Coincident", 5, 2, 6, 1),
    Sketcher.Constraint("Coincident", 6, 2, 7, 1),
    Sketcher.Constraint("Coincident", 7, 2, 8, 1),
    Sketcher.Constraint("Coincident", 8, 2, 9, 1),
    Sketcher.Constraint("Coincident", 9, 2, 10, 1),
    Sketcher.Constraint("Coincident", 10, 2, 11, 1),
    Sketcher.Constraint("Coincident", 11, 2, 12, 1),
    Sketcher.Constraint("Coincident", 12, 2, 13, 1),
    Sketcher.Constraint("Coincident", 13, 2, 14, 1),
    Sketcher.Constraint("Coincident", 14, 2, 15, 1),
    Sketcher.Constraint("Coincident", 15, 2, 16, 1),
    Sketcher.Constraint("Coincident", 16, 2, 0, 1),
    Sketcher.Constraint("Tangent", 18, 2, 19, 1),
    Sketcher.Constraint("Tangent", 19, 2, 20, 1),
    Sketcher.Constraint("Tangent", 20, 2, 21, 1),
    Sketcher.Constraint("Tangent", 21, 2, 18, 1),
    Sketcher.Constraint("Tangent", 22, 2, 23, 1),
    Sketcher.Constraint("Tangent", 23, 2, 24, 1),
    Sketcher.Constraint("Tangent", 24, 2, 25, 1),
    Sketcher.Constraint("Tangent", 25, 2, 22, 1),
    Sketcher.Constraint("Vertical", 0),
    Sketcher.Constraint("Horizontal", 2),
    Sketcher.Constraint("Vertical", 3),
    Sketcher.Constraint("Horizontal", 4),
    Sketcher.Constraint("Vertical", 5),
    Sketcher.Constraint("Horizontal", 6),
    Sketcher.Constraint("Vertical", 7),
    Sketcher.Constraint("Vertical", 9),
    Sketcher.Constraint("Horizontal", 10),
    Sketcher.Constraint("Vertical", 11),
    Sketcher.Constraint("Horizontal", 12),
    Sketcher.Constraint("Vertical", 13),
    Sketcher.Constraint("Horizontal", 14),
    Sketcher.Constraint("Vertical", 15),
    Sketcher.Constraint("Horizontal", 16),
    Sketcher.Constraint("Equal", 19, 21),
    Sketcher.Constraint("Equal", 23, 25),
    Sketcher.Constraint("Equal", 17, 26),
    Sketcher.Constraint("Equal", 26, 27),
    Sketcher.Constraint("Equal", 27, 28),
    Sketcher.Constraint("PointOnObject", 1, 2, -1),
    Sketcher.Constraint("Parallel", 20, 22),
    Sketcher.Constraint("Horizontal", 6, 2, 9, 2),
    Sketcher.Constraint("Horizontal", 4, 2, 11, 2),
    Sketcher.Constraint("Vertical", 17, 3, 26, 3),
    Sketcher.Constraint("Vertical", 3, 2, 6, 2),
    Sketcher.Constraint("Vertical", 0, 2, 8, 2),
    Sketcher.Constraint("Vertical", 9, 2, 12, 2),
    Sketcher.Constraint("Vertical", 11, 2, 14, 2),
    Sketcher.Constraint("Equal", 6, 10),
    Sketcher.Constraint("Equal", 11, 15),
    Sketcher.Constraint("Diameter", 17, Q("2.5 mm")),
    Sketcher.Constraint("DistanceX", 4, 2, 4, 1, Q("3 mm")),
    Sketcher.Constraint("DistanceY", 0, 2, 0, 1, Q("5 mm")),
    Sketcher.Constraint("DistanceY", 5, 1, 5, 2, Q("6 mm")),
    Sketcher.Constraint("DistanceX", 2, 2, 2, 1, Q("25.295 mm")),
    Sketcher.Constraint("DistanceY", 0, 2, -1, 1, Q("25.02 mm")),
    Sketcher.Constraint("DistanceY", -1, 1, 7, 2, Q("45.22 mm")),
    Sketcher.Constraint("DistanceY", -1, 1, 8, 2, Q("35.99 mm")),
    Sketcher.Constraint("DistanceX", 28, 3, 0, 2, Q("2.51 mm")),
    Sketcher.Constraint("DistanceX", 17, 3, 0, 2, Q("27.14 mm")),
    Sketcher.Constraint("DistanceX", 2, 2, 17, 3, Q("1.99 mm")),
    Sketcher.Constraint("Radius", 19, Q("0.542817 mm")),
    Sketcher.Constraint("Radius", 23, Q("0.489322 mm")),
    Sketcher.Constraint("DistanceY", 26, 3, 27, 3, Q("0.463999 mm")),
    Sketcher.Constraint("DistanceX", 22, 2, 27, 3, Q("5.339001 mm")),
    Sketcher.Constraint("DistanceY", 3, 1, 3, 2, Q("4.042669 mm")),
    Sketcher.Constraint("DistanceX", 17, 3, 23, 3, Q("6.559699 mm")),
    Sketcher.Constraint("DistanceX", 23, 3, 25, 3, Q("12.030602 mm")),
    Sketcher.Constraint("DistanceX", 24, 2, 20, 2, Q("2.427698 mm")),
    Sketcher.Constraint("Distance", 18, Q("14.049439 mm")),
    Sketcher.Constraint("DistanceX", 17, 3, -1, 1, Q("48.155482 mm")),
    Sketcher.Constraint("DistanceY", -1, 1, 19, 3, Q("26.04542 mm")),
    Sketcher.Constraint("DistanceY", -1, 1, 21, 3, Q("21.958982 mm")),
    Sketcher.Constraint("DistanceY", -1, 1, 23, 3, Q("30.557108 mm")),
    Sketcher.Constraint("DistanceY", 21, 3, 17, 3, Q("5.222211 mm")),
    Sketcher.Constraint("DistanceY", 17, 3, 26, 3, Q("8.144621 mm")),
    Sketcher.Constraint("DistanceY", 21, 3, 28, 3, Q("9.294522 mm")),
])
pad10 = doc.addObject("PartDesign::Pad", "Pad009")
body4.addObject(pad10)
pad10.Profile = sketch20
pad10.Length = 1
pad10.Reversed = True

sketch21 = doc.addObject("Sketcher::SketchObject", "Sketch020")
body4.addObject(sketch21)
sketch21.AttachmentSupport = (doc.getObject("XY_Plane003"), [""])
sketch21.MapMode = "FlatFace"
sketch21.AttachmentOffset = App.Placement(Vector(0, 0, 6.688974), App.Rotation())
sketch21.addGeometry([
    Part.LineSegment(Vector(-33.1, 8.5, 0), Vector(-33.1, 5.5, 0)),
    Part.LineSegment(Vector(-33.1, 5.5, 0), Vector(-41.1, 5.5, 0)),
    Part.LineSegment(Vector(-41.1, 5.5, 0), Vector(-41.1, 8.5, 0)),
    Part.LineSegment(Vector(-41.1, 8.5, 0), Vector(-33.1, 8.5, 0)),
], False)
sketch21.addConstraint([
    Sketcher.Constraint("Coincident", 0, 2, 1, 1),
    Sketcher.Constraint("Coincident", 1, 2, 2, 1),
    Sketcher.Constraint("Coincident", 2, 2, 3, 1),
    Sketcher.Constraint("Coincident", 3, 2, 0, 1),
    Sketcher.Constraint("Vertical", 0),
    Sketcher.Constraint("Horizontal", 1),
    Sketcher.Constraint("Vertical", 2),
    Sketcher.Constraint("Horizontal", 3),
    Sketcher.Constraint("DistanceX", 1, 2, 1, 1, Q("8 mm")),
    Sketcher.Constraint("DistanceY", 0, 2, 0, 1, Q("3 mm")),
    Sketcher.Constraint("DistanceX", 0, 2, -1, 1, Q("33.080482 mm")),
    Sketcher.Constraint("DistanceY", -1, 1, 0, 2, Q("5.542669 mm")),
])
pocket11 = doc.addObject("PartDesign::Pocket", "Pocket010")
body4.addObject(pocket11)
pocket11.Profile = sketch21
pocket11.Length = 10
pocket11.Reversed = True
body.Visibility = False
body2.Visibility = False
body3.Visibility = False
mirroring.Visibility = False
mirroring2.Visibility = False
mirroring3.Visibility = False

doc.recompute()
